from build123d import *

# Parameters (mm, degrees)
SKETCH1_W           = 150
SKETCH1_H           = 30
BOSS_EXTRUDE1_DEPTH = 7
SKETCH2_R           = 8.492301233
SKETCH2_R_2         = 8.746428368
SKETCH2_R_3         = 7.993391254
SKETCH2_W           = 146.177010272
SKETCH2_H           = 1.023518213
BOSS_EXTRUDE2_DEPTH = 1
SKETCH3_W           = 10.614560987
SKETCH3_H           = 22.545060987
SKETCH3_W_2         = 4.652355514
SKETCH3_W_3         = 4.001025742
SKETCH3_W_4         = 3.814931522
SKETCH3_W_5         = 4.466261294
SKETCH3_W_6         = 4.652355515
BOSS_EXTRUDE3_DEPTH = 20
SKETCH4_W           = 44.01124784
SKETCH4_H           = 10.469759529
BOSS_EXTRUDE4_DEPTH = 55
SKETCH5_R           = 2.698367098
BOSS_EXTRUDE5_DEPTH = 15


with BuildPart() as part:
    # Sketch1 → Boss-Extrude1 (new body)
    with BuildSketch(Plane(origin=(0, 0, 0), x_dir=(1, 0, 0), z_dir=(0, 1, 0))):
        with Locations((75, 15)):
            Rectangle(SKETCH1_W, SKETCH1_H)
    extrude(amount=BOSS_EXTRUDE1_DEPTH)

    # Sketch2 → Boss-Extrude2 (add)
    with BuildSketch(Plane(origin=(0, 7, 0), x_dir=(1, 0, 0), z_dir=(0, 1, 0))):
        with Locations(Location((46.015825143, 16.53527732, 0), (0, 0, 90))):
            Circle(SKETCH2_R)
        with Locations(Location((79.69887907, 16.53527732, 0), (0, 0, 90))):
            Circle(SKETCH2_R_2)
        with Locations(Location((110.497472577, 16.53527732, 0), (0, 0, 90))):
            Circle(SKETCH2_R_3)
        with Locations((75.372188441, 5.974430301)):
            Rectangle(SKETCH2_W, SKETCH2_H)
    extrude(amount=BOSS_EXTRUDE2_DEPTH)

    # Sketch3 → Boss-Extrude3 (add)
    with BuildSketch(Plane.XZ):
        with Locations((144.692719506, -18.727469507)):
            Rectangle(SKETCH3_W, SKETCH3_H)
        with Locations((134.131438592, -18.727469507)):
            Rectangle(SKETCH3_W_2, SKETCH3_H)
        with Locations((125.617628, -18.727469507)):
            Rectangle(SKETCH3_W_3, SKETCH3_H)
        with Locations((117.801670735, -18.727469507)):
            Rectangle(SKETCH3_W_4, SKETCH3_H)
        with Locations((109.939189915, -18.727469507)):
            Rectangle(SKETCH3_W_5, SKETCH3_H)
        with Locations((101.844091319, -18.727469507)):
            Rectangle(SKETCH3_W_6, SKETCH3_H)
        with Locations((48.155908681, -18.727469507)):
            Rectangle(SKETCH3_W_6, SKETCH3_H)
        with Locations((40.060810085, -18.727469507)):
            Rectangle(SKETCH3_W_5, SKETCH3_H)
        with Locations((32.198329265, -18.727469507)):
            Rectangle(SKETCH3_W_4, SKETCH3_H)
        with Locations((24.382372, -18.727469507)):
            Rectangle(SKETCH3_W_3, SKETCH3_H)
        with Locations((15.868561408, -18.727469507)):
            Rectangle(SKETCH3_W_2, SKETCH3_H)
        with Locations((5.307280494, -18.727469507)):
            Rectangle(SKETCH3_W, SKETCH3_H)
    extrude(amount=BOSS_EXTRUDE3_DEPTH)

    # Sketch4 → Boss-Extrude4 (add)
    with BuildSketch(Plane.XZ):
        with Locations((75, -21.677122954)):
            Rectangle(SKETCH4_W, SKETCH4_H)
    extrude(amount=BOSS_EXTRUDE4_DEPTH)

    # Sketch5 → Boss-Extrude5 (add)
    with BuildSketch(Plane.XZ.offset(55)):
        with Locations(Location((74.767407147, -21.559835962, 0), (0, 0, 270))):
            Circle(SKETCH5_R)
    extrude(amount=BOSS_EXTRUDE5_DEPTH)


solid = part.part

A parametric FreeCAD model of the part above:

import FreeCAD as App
import Part
import Sketcher
from FreeCAD import Vector


def add_polygon(sketch, points):
    """Adds a closed chain of lines whose ends are joined by coincident constraints."""
    first, n = sketch.GeometryCount, len(points)
    for a, b in zip(points, points[1:] + points[:1]):
        sketch.addGeometry(Part.LineSegment(App.Vector(*a, 0), App.Vector(*b, 0)), False)
    for i in range(n):
        sketch.addConstraint(Sketcher.Constraint("Coincident", first + i, 2, first + (i + 1) % n, 1))

doc = App.newDocument("Part")
body = doc.addObject("PartDesign::Body", "Body")

# Sketch on XZ plane
sketch1 = doc.addObject("Sketcher::SketchObject", "Sketch")
body.addObject(sketch1)
sketch1.AttachmentSupport = (doc.XZ_Plane, [""])
sketch1.MapMode = "FlatFace"
add_polygon(sketch1, [(0, -30), (0, 0), (150, 0), (150, -30)])  # lines 0-3
sketch1.addConstraint([
    Sketcher.Constraint("Vertical", 0),
    Sketcher.Constraint("Horizontal", 1),
    Sketcher.Constraint("Vertical", 2),
    Sketcher.Constraint("Horizontal", 3),
    Sketcher.Constraint("Coincident", 0, 2, -1, 1),
    Sketcher.Constraint("DistanceX", 1, 1, 1, 2, 150.0),
    Sketcher.Constraint("DistanceY", 0, 1, 0, 2, 30.0),
])
pad1 = doc.addObject("PartDesign::Pad", "Pad")
body.addObject(pad1)
pad1.Profile = sketch1
pad1.Length = 7
pad1.Reversed = True

# Sketch on XZ plane
sketch2 = doc.addObject("Sketcher::SketchObject", "Sketch001")
body.addObject(sketch2)
sketch2.AttachmentSupport = (doc.XZ_Plane, [""])
sketch2.MapMode = "FlatFace"
sketch2.AttachmentOffset = App.Placement(Vector(0, 0, -7), App.Rotation())
sketch2.addGeometry(Part.Circle(Vector(46, -16.5, 0), Vector(0, 0, 1), 8.5), False)  # 0
sketch2.addGeometry(Part.Circle(Vector(79.7, -16.5, 0), Vector(0, 0, 1), 8.7), False)  # 1
sketch2.addGeometry(Part.Circle(Vector(110.5, -16.5, 0), Vector(0, 0, 1), 8), False)  # 2
add_polygon(sketch2, [(2.3, -6.5), (2.3, -5.5), (148.5, -5.5), (148.5, -6.5)])  # lines 3-6
sketch2.addConstraint([
    Sketcher.Constraint("Vertical", 3),
    Sketcher.Constraint("Horizontal", 4),
    Sketcher.Constraint("Vertical", 5),
    Sketcher.Constraint("Horizontal", 6),
    Sketcher.Constraint("Horizontal", 0, 3, 1, 3),
    Sketcher.Constraint("Horizontal", 1, 3, 2, 3),
    Sketcher.Constraint("Diameter", 0, 16.984602),
    Sketcher.Constraint("Diameter", 1, 17.492857),
    Sketcher.Constraint("Diameter", 2, 15.986783),
    Sketcher.Constraint("DistanceX", 4, 1, 4, 2, 146.17701),
    Sketcher.Constraint("DistanceY", 3, 1, 3, 2, 1.023518),
    Sketcher.Constraint("DistanceX", -1, 1, 1, 3, 79.698879),
    Sketcher.Constraint("DistanceY", 3, 2, -1, 1, 5.462671),
    Sketcher.Constraint("DistanceX", 3, 2, 0, 3, 43.732142),
    Sketcher.Constraint("DistanceX", 3, 2, 2, 3, 108.213789),
    Sketcher.Constraint("DistanceX", -1, 1, 0, 3, 46.015825),
    Sketcher.Constraint("DistanceY", 0, 3, -1, 1, 16.535277),
])
pad2 = doc.addObject("PartDesign::Pad", "Pad001")
body.addObject(pad2)
pad2.Profile = sketch2
pad2.Length = 1
pad2.Reversed = True

# Sketch on XZ plane
sketch3 = doc.addObject("Sketcher::SketchObject", "Sketch002")
body.addObject(sketch3)
sketch3.AttachmentSupport = (doc.XZ_Plane, [""])
sketch3.MapMode = "FlatFace"
add_polygon(sketch3, [(139.4, -7.5), (139.4, -30), (150, -30), (150, -7.5)])  # lines 0-3
add_polygon(sketch3, [(131.8, -7.5), (131.8, -30), (136.5, -30), (136.5, -7.5)])  # lines 4-7
add_polygon(sketch3, [(123.6, -7.5), (123.6, -30), (127.6, -30), (127.6, -7.5)])  # lines 8-11
add_polygon(sketch3, [(115.9, -7.5), (115.9, -30), (119.7, -30), (119.7, -7.5)])  # lines 12-15
add_polygon(sketch3, [(107.7, -7.5), (107.7, -30), (112.2, -30), (112.2, -7.5)])  # lines 16-19
add_polygon(sketch3, [(99.5, -7.5), (99.5, -30), (104.2, -30), (104.2, -7.5)])  # lines 20-23
add_polygon(sketch3, [(45.8, -7.5), (45.8, -30), (50.5, -30), (50.5, -7.5)])  # lines 24-27
add_polygon(sketch3, [(37.8, -7.5), (37.8, -30), (42.3, -30), (42.3, -7.5)])  # lines 28-31
add_polygon(sketch3, [(30.3, -7.5), (30.3, -30), (34.1, -30), (34.1, -7.5)])  # lines 32-35
add_polygon(sketch3, [(22.4, -7.5), (22.4, -30), (26.4, -30), (26.4, -7.5)])  # lines 36-39
add_polygon(sketch3, [(13.5, -7.5), (13.5, -30), (18.2, -30), (18.2, -7.5)])  # lines 40-43
add_polygon(sketch3, [(0, -7.5), (0, -30), (10.6, -30), (10.6, -7.5)])  # lines 44-47
sketch3.addConstraint([
    Sketcher.Constraint("Vertical", 0),
    Sketcher.Constraint("Horizontal", 1),
    Sketcher.Constraint("Vertical", 2),
    Sketcher.Constraint("Horizontal", 3),
    Sketcher.Constraint("Vertical", 4),
    Sketcher.Constraint("Horizontal", 5),
    Sketcher.Constraint("Vertical", 6),
    Sketcher.Constraint("Horizontal", 7),
    Sketcher.Constraint("Vertical", 8),
    Sketcher.Constraint("Horizontal", 9),
    Sketcher.Constraint("Vertical", 10),
    Sketcher.Constraint("Horizontal", 11),
    Sketcher.Constraint("Vertical", 12),
    Sketcher.Constraint("Horizontal", 13),
    Sketcher.Constraint("Vertical", 14),
    Sketcher.Constraint("Horizontal", 15),
    Sketcher.Constraint("Vertical", 16),
    Sketcher.Constraint("Horizontal", 17),
    Sketcher.Constraint("Vertical", 18),
    Sketcher.Constraint("Horizontal", 19),
    Sketcher.Constraint("Vertical", 20),
    Sketcher.Constraint("Horizontal", 21),
    Sketcher.Constraint("Vertical", 22),
    Sketcher.Constraint("Horizontal", 23),
    Sketcher.Constraint("Vertical", 24),
    Sketcher.Constraint("Horizontal", 25),
    Sketcher.Constraint("Vertical", 26),
    Sketcher.Constraint("Horizontal", 27),
    Sketcher.Constraint("Vertical", 28),
    Sketcher.Constraint("Horizontal", 29),
    Sketcher.Constraint("Vertical", 30),
    Sketcher.Constraint("Horizontal", 31),
    Sketcher.Constraint("Vertical", 32),
    Sketcher.Constraint("Horizontal", 33),
    Sketcher.Constraint("Vertical", 34),
    Sketcher.Constraint("Horizontal", 35),
    Sketcher.Constraint("Vertical", 36),
    Sketcher.Constraint("Horizontal", 37),
    Sketcher.Constraint("Vertical", 38),
    Sketcher.Constraint("Horizontal", 39),
    Sketcher.Constraint("Vertical", 40),
    Sketcher.Constraint("Horizontal", 41),
    Sketcher.Constraint("Vertical", 42),
    Sketcher.Constraint("Horizontal", 43),
    Sketcher.Constraint("Vertical", 44),
    Sketcher.Constraint("Horizontal", 45),
    Sketcher.Constraint("Vertical", 46),
    Sketcher.Constraint("Horizontal", 47),
    Sketcher.Constraint("PointOnObject", 44, 2, -2),
    Sketcher.Constraint("Horizontal", 1, 2, 4, 2),
    Sketcher.Constraint("Horizontal", 3, 2, 6, 2),
    Sketcher.Constraint("Horizontal", 5, 2, 8, 2),
    Sketcher.Constraint("Horizontal", 7, 2, 10, 2),
    Sketcher.Constraint("Horizontal", 9, 2, 12, 2),
    Sketcher.Constraint("Horizontal", 11, 2, 14, 2),
    Sketcher.Constraint("Horizontal", 13, 2, 16, 2),
    Sketcher.Constraint("Horizontal", 15, 2, 18, 2),
    Sketcher.Constraint("Horizontal", 17, 2, 20, 2),
    Sketcher.Constraint("Horizontal", 19, 2, 22, 2),
    Sketcher.Constraint("Horizontal", 21, 2, 24, 2),
    Sketcher.Constraint("Horizontal", 23, 2, 26, 2),
    Sketcher.Constraint("Horizontal", 25, 2, 28, 2),
    Sketcher.Constraint("Horizontal", 27, 2, 30, 2),
    Sketcher.Constraint("Horizontal", 29, 2, 32, 2),
    Sketcher.Constraint("Horizontal", 31, 2, 34, 2),
    Sketcher.Constraint("Horizontal", 33, 2, 36, 2),
    Sketcher.Constraint("Horizontal", 35, 2, 38, 2),
    Sketcher.Constraint("Horizontal", 37, 2, 40, 2),
    Sketcher.Constraint("Horizontal", 39, 2, 42, 2),
    Sketcher.Constraint("Horizontal", 41, 2, 44, 2),
    Sketcher.Constraint("Horizontal", 43, 2, 46, 2),
    Sketcher.Constraint("Equal", 7, 21),
    Sketcher.Constraint("Equal", 23, 25),
    Sketcher.Constraint("Equal", 19, 29),
    Sketcher.Constraint("Equal", 15, 33),
    Sketcher.Constraint("Equal", 11, 37),
    Sketcher.Constraint("Equal", 27, 41),
    Sketcher.Constraint("Equal", 3, 45),
    Sketcher.Constraint("DistanceY", 0, 2, -1, 1, 30.0),
    Sketcher.Constraint("DistanceX", -1, 1, 1, 2, 150.0),
    Sketcher.Constraint("DistanceX", 1, 1, 1, 2, 10.614561),
    Sketcher.Constraint("DistanceX", 13, 1, 13, 2, 3.814932),
    Sketcher.Constraint("DistanceX", 17, 1, 17, 2, 4.466261),
    Sketcher.Constraint("DistanceY", 0, 2, 0, 1, 22.545061),
    Sketcher.Constraint("DistanceX", 8, 2, 5, 2, 12.840501),
    Sketcher.Constraint("DistanceX", 9, 2, 0, 2, 11.767298),
    Sketcher.Constraint("DistanceX", 40, 2, 37, 2, 12.840501),
    Sketcher.Constraint("DistanceX", 45, 2, 36, 2, 11.767298),
    Sketcher.Constraint("DistanceX", 5, 1, 5, 2, 4.652356),
    Sketcher.Constraint("DistanceX", 9, 1, 9, 2, 4.001026),
    Sketcher.Constraint("DistanceX", -1, 1, 16, 2, 107.706059),
    Sketcher.Constraint("DistanceX", -1, 1, 21, 2, 104.170269),
    Sketcher.Constraint("DistanceX", -1, 1, 24, 2, 45.829731),
    Sketcher.Constraint("DistanceX", -1, 1, 28, 2, 37.827679),
    Sketcher.Constraint("DistanceX", 12, 2, 8, 2, 7.72291),
    Sketcher.Constraint("DistanceX", 33, 2, 25, 2, 16.376291),
])
pad3 = doc.addObject("PartDesign::Pad", "Pad002")
body.addObject(pad3)
pad3.Profile = sketch3
pad3.Length = 20

# Sketch on XZ plane
sketch4 = doc.addObject("Sketcher::SketchObject", "Sketch003")
body.addObject(sketch4)
sketch4.AttachmentSupport = (doc.XZ_Plane, [""])
sketch4.MapMode = "FlatFace"
add_polygon(sketch4, [(53, -16), (53, -27), (97, -27), (97, -16)])  # lines 0-3
sketch4.addConstraint([
    Sketcher.Constraint("Vertical", 0),
    Sketcher.Constraint("Horizontal", 1),
    Sketcher.Constraint("Vertical", 2),
    Sketcher.Constraint("Horizontal", 3),
    Sketcher.Constraint("DistanceY", 0, 2, 0, 1, 10.46976),
    Sketcher.Constraint("DistanceX", 1, 1, 1, 2, 44.011248),
    Sketcher.Constraint("DistanceX", -1, 1, 0, 2, 52.994376),
    Sketcher.Constraint("DistanceY", 0, 2, -1, 1, 26.912003),
])
pad4 = doc.addObject("PartDesign::Pad", "Pad003")
body.addObject(pad4)
pad4.Profile = sketch4
pad4.Length = 55

# Sketch on XZ plane
sketch5 = doc.addObject("Sketcher::SketchObject", "Sketch004")
body.addObject(sketch5)
sketch5.AttachmentSupport = (doc.XZ_Plane, [""])
sketch5.MapMode = "FlatFace"
sketch5.AttachmentOffset = App.Placement(Vector(0, 0, 55), App.Rotation())
sketch5.addGeometry(Part.Circle(Vector(74.8, -21.6, 0), Vector(0, 0, 1), 2.7), False)
sketch5.addConstraint([
    Sketcher.Constraint("Diameter", 0, 5.396734),
    Sketcher.Constraint("DistanceX", -1, 1, 0, 3, 74.767407),
    Sketcher.Constraint("DistanceY", 0, 3, -1, 1, 21.559836),
])
pad5 = doc.addObject("PartDesign::Pad", "Pad004")
body.addObject(pad5)
pad5.Profile = sketch5
pad5.Length = 15

doc.recompute()
